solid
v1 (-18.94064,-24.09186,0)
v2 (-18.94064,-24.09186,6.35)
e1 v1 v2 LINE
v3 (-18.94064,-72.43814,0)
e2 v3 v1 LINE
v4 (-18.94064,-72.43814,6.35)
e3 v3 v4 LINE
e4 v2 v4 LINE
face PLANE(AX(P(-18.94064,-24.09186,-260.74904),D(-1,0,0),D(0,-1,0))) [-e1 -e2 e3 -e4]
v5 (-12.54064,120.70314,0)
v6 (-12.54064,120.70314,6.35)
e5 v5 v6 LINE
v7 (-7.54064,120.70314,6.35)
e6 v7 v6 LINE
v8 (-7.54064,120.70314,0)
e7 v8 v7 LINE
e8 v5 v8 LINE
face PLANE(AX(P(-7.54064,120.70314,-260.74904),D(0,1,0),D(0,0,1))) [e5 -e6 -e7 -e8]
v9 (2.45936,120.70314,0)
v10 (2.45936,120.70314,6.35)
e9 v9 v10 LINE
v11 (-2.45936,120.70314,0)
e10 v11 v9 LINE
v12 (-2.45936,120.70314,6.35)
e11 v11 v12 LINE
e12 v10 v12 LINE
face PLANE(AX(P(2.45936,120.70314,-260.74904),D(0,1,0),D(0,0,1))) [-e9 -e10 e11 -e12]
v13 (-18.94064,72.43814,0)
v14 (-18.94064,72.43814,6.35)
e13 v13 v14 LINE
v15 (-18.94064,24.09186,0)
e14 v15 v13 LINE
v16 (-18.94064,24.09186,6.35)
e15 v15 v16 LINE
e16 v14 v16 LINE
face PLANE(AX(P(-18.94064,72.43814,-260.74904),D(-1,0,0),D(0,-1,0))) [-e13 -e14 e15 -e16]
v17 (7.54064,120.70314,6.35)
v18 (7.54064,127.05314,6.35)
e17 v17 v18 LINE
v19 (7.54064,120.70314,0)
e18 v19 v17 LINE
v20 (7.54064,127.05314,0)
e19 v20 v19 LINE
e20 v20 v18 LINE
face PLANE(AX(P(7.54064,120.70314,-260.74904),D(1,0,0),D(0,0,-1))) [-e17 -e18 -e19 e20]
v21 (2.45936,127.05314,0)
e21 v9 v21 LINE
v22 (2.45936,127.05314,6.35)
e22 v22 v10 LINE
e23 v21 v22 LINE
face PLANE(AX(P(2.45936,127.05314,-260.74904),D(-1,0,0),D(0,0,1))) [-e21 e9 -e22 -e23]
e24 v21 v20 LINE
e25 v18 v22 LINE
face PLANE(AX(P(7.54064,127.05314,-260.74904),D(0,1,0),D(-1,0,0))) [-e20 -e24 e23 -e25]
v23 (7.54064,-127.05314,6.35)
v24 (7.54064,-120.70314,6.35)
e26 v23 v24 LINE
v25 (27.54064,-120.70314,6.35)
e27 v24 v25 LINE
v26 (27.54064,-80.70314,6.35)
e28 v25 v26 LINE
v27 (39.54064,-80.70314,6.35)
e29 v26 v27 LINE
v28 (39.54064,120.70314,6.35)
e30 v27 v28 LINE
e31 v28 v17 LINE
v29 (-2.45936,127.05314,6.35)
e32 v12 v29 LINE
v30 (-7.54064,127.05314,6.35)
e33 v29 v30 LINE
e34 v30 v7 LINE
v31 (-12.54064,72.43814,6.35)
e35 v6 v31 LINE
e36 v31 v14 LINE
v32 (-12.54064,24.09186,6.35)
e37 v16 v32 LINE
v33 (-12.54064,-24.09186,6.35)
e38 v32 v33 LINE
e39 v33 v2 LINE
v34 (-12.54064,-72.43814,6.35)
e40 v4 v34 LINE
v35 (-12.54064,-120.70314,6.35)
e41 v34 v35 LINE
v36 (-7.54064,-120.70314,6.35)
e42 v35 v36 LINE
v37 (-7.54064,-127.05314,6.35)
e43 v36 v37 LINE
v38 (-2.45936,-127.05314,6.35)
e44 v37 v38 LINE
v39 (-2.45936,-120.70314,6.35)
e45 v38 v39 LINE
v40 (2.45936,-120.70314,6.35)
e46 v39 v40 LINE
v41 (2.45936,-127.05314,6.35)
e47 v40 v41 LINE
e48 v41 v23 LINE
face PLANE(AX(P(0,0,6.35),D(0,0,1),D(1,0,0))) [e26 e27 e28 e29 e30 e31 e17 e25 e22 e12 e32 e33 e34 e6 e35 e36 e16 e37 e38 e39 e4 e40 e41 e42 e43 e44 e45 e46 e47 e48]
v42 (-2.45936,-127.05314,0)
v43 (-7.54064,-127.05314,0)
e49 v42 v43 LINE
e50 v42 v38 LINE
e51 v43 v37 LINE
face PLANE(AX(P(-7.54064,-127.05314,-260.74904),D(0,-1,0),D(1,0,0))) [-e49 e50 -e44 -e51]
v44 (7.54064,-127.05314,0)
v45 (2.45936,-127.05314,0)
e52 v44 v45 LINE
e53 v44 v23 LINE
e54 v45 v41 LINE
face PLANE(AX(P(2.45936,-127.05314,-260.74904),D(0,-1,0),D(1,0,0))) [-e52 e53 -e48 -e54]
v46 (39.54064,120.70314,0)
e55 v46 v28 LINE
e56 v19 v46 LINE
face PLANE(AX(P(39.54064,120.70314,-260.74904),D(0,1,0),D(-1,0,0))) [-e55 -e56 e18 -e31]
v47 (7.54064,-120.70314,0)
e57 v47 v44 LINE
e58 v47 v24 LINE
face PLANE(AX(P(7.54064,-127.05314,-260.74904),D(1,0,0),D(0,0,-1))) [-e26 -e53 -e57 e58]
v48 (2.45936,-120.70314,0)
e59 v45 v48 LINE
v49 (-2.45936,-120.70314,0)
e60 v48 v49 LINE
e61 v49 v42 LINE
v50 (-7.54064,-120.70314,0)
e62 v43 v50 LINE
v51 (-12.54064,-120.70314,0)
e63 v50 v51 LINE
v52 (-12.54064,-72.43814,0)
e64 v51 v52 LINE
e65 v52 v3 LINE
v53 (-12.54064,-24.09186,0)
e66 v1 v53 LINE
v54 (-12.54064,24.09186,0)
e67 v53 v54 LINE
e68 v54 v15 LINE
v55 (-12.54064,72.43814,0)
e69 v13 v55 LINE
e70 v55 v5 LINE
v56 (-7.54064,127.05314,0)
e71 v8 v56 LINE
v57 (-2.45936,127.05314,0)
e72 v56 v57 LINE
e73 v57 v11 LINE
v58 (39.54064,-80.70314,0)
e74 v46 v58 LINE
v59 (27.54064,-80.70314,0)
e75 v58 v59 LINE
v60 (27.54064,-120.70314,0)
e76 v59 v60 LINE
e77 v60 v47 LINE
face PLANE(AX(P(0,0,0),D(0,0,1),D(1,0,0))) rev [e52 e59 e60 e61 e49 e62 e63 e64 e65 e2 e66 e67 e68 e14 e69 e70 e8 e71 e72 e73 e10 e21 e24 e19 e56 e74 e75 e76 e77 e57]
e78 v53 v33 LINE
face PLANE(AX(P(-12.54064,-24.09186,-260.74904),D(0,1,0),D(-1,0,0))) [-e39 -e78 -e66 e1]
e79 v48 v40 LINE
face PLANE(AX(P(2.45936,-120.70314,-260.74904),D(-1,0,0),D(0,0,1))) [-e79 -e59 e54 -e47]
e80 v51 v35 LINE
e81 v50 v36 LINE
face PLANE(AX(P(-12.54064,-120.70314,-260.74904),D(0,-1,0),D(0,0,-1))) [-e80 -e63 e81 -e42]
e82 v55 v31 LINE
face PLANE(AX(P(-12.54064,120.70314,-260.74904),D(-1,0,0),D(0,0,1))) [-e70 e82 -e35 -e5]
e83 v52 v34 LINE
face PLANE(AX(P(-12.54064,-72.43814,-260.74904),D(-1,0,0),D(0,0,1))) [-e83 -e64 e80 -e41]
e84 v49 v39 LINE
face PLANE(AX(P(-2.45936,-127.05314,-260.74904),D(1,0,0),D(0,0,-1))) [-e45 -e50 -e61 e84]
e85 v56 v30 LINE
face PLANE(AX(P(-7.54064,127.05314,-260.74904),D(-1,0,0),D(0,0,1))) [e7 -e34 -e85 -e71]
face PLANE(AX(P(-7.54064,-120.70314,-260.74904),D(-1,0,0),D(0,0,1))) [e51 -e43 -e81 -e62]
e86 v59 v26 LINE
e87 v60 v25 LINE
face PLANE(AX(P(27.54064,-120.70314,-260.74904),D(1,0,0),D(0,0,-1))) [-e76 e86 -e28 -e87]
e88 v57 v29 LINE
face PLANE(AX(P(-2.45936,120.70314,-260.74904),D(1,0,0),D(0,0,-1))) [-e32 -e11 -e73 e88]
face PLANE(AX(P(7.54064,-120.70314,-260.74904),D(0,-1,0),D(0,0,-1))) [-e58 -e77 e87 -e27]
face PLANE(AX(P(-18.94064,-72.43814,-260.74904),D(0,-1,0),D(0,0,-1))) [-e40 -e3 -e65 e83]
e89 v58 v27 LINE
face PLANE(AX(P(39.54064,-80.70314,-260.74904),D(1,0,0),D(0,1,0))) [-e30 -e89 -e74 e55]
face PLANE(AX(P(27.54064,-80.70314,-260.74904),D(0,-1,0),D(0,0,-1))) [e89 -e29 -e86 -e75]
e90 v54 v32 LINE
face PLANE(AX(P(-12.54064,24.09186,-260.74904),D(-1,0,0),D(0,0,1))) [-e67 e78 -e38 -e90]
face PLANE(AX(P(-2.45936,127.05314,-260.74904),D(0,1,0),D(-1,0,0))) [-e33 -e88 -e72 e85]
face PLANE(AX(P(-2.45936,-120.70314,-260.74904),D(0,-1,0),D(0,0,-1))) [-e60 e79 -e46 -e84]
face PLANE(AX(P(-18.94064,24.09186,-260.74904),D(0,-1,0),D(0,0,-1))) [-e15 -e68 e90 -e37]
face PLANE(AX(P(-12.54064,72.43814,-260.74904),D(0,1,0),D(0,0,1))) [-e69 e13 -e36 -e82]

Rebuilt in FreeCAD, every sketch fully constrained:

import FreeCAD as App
import Part
import Sketcher

V = App.Vector
Q = App.Units.Quantity

doc = App.newDocument("Part")
body = doc.addObject("PartDesign::Body", "Body")

# Sketch on XY plane
sketch1 = doc.addObject("Sketcher::SketchObject", "Sketch")
body.addObject(sketch1)
sketch1.AttachmentSupport = (doc.XY_Plane, [""])
sketch1.MapMode = "FlatFace"
sketch1.addGeometry([
    Part.LineSegment(V(-7.5, 127.0125, 0), V(-7.5, 120.6625, 0)),  # 0
    Part.LineSegment(V(-7.5, 120.6625, 0), V(-12.5, 120.6625, 0)),  # 1
    Part.LineSegment(V(-12.5, 120.6625, 0), V(-12.5, 72.3975, 0)),  # 2
    Part.LineSegment(V(-12.5, 72.3975, 0), V(-18.9, 72.3975, 0)),  # 3
    Part.LineSegment(V(-18.9, 72.3975, 0), V(-18.9, 24.1325, 0)),  # 4
    Part.LineSegment(V(-18.9, 24.1325, 0), V(-12.5, 24.1325, 0)),  # 5
    Part.LineSegment(V(-12.5, 24.1325, 0), V(-12.5, -24.1325, 0)),  # 6
    Part.LineSegment(V(-12.5, -24.1325, 0), V(-18.9, -24.1325, 0)),  # 7
    Part.LineSegment(V(-18.9, -24.1325, 0), V(-18.9, -72.3975, 0)),  # 8
    Part.LineSegment(V(-18.9, -72.3975, 0), V(-12.5, -72.3975, 0)),  # 9
    Part.LineSegment(V(-12.5, -72.3975, 0), V(-12.5, -120.6625, 0)),  # 10
    Part.LineSegment(V(-12.5, -120.6625, 0), V(-7.5, -120.6625, 0)),  # 11
    Part.LineSegment(V(-7.5, -120.6625, 0), V(-7.5, -127.0125, 0)),  # 12
    Part.LineSegment(V(-7.5, -127.0125, 0), V(-2.5, -127.0125, 0)),  # 13
    Part.LineSegment(V(-2.5, -127.0125, 0), V(-2.5, -120.6625, 0)),  # 14
    Part.LineSegment(V(-2.5, -120.6625, 0), V(2.5, -120.6625, 0)),  # 15
    Part.LineSegment(V(2.5, -120.6625, 0), V(2.5, -127.0125, 0)),  # 16
    Part.LineSegment(V(2.5, -127.0125, 0), V(7.5, -127.0125, 0)),  # 17
    Part.LineSegment(V(7.5, -127.0125, 0), V(7.5, -120.6625, 0)),  # 18
    Part.LineSegment(V(7.5, -120.6625, 0), V(27.5, -120.6625, 0)),  # 19
    Part.LineSegment(V(27.5, -120.6625, 0), V(27.5, -80.6625, 0)),  # 20
    Part.LineSegment(V(27.5, -80.6625, 0), V(39.5, -80.6625, 0)),  # 21
    Part.LineSegment(V(39.5, -80.6625, 0), V(39.5, 120.6625, 0)),  # 22
    Part.LineSegment(V(39.5, 120.6625, 0), V(7.5, 120.6625, 0)),  # 23
    Part.LineSegment(V(7.5, 120.6625, 0), V(7.5, 127.0125, 0)),  # 24
    Part.LineSegment(V(7.5, 127.0125, 0), V(2.5, 127.0125, 0)),  # 25
    Part.LineSegment(V(2.5, 127.0125, 0), V(2.5, 120.6625, 0)),  # 26
    Part.LineSegment(V(2.5, 120.6625, 0), V(-2.5, 120.6625, 0)),  # 27
    Part.LineSegment(V(-2.5, 120.6625, 0), V(-2.5, 127.0125, 0)),  # 28
    Part.LineSegment(V(-2.5, 127.0125, 0), V(-7.5, 127.0125, 0)),  # 29
], False)
sketch1.addConstraint([
    Sketcher.Constraint("Coincident", 0, 2, 1, 1),
    Sketcher.Constraint("Coincident", 1, 2, 2, 1),
    Sketcher.Constraint("Coincident", 2, 2, 3, 1),
    Sketcher.Constraint("Coincident", 3, 2, 4, 1),
    Sketcher.Constraint("Coincident", 4, 2, 5, 1),
    Sketcher.Constraint("Coincident", 5, 2, 6, 1),
    Sketcher.Constraint("Coincident", 6, 2, 7, 1),
    Sketcher.Constraint("Coincident", 7, 2, 8, 1),
    Sketcher.Constraint("Coincident", 8, 2, 9, 1),
    Sketcher.Constraint("Coincident", 9, 2, 10, 1),
    Sketcher.Constraint("Coincident", 10, 2, 11, 1),
    Sketcher.Constraint("Coincident", 11, 2, 12, 1),
    Sketcher.Constraint("Coincident", 12, 2, 13, 1),
    Sketcher.Constraint("Coincident", 13, 2, 14, 1),
    Sketcher.Constraint("Coincident", 14, 2, 15, 1),
    Sketcher.Constraint("Coincident", 15, 2, 16, 1),
    Sketcher.Constraint("Coincident", 16, 2, 17, 1),
    Sketcher.Constraint("Coincident", 17, 2, 18, 1),
    Sketcher.Constraint("Coincident", 18, 2, 19, 1),
    Sketcher.Constraint("Coincident", 19, 2, 20, 1),
    Sketcher.Constraint("Coincident", 20, 2, 21, 1),
    Sketcher.Constraint("Coincident", 21, 2, 22, 1),
    Sketcher.Constraint("Coincident", 22, 2, 23, 1),
    Sketcher.Constraint("Coincident", 23, 2, 24, 1),
    Sketcher.Constraint("Coincident", 24, 2, 25, 1),
    Sketcher.Constraint("Coincident", 25, 2, 26, 1),
    Sketcher.Constraint("Coincident", 26, 2, 27, 1),
    Sketcher.Constraint("Coincident", 27, 2, 28, 1),
    Sketcher.Constraint("Coincident", 28, 2, 29, 1),
    Sketcher.Constraint("Coincident", 29, 2, 0, 1),
    Sketcher.Constraint("Vertical", 0),
    Sketcher.Constraint("Horizontal", 1),
    Sketcher.Constraint("Vertical", 2),
    Sketcher.Constraint("Horizontal", 3),
    Sketcher.Constraint("Vertical", 4),
    Sketcher.Constraint("Horizontal", 5),
    Sketcher.Constraint("Vertical", 6),
    Sketcher.Constraint("Horizontal", 7),
    Sketcher.Constraint("Vertical", 8),
    Sketcher.Constraint("Horizontal", 9),
    Sketcher.Constraint("Vertical", 10),
    Sketcher.Constraint("Horizontal", 11),
    Sketcher.Constraint("Vertical", 12),
    Sketcher.Constraint("Horizontal", 13),
    Sketcher.Constraint("Vertical", 14),
    Sketcher.Constraint("Horizontal", 15),
    Sketcher.Constraint("Vertical", 16),
    Sketcher.Constraint("Horizontal", 17),
    Sketcher.Constraint("Vertical", 18),
    Sketcher.Constraint("Horizontal", 19),
    Sketcher.Constraint("Vertical", 20),
    Sketcher.Constraint("Horizontal", 21),
    Sketcher.Constraint("Vertical", 22),
    Sketcher.Constraint("Horizontal", 23),
    Sketcher.Constraint("Vertical", 24),
    Sketcher.Constraint("Horizontal", 25),
    Sketcher.Constraint("Vertical", 26),
    Sketcher.Constraint("Horizontal", 27),
    Sketcher.Constraint("Vertical", 28),
    Sketcher.Constraint("Horizontal", 29),
    Sketcher.Constraint("Symmetric", 0, 2, 18, 2, -1, 1),
    Sketcher.Constraint("Symmetric", 11, 2, 23, 2, -1, 1),
    Sketcher.Constraint("Symmetric", 13, 2, 25, 2, -1, 1),
    Sketcher.Constraint("Symmetric", 15, 2, 27, 2, -1, 1),
    Sketcher.Constraint("Symmetric", 13, 2, 16, 2, -2),
    Sketcher.Constraint("Symmetric", 11, 2, 18, 2, -2),
    Sketcher.Constraint("Symmetric", 4, 2, 7, 2, -1),
    Sketcher.Constraint("Symmetric", 2, 2, 9, 2, -1),
    Sketcher.Constraint("Horizontal", 11, 2, 14, 2),
    Sketcher.Constraint("Horizontal", 25, 2, 28, 2),
    Sketcher.Constraint("Vertical", 2, 2, 5, 2),
    Sketcher.Constraint("Equal", 11, 13),
    Sketcher.Constraint("Equal", 13, 15),
    Sketcher.Constraint("Equal", 2, 4),
    Sketcher.Constraint("Equal", 4, 6),
    Sketcher.Constraint("DistanceX", 1, 2, 1, 1, Q("5 mm")),
    Sketcher.Constraint("DistanceX", 19, 1, 19, 2, Q("20 mm")),
    Sketcher.Constraint("DistanceX", 21, 1, 21, 2, Q("12 mm")),
    Sketcher.Constraint("DistanceY", 20, 1, 20, 2, Q("40 mm")),
    Sketcher.Constraint("DistanceX", 3, 2, 3, 1, Q("6.4 mm")),
    Sketcher.Constraint("DistanceY", 0, 2, 0, 1, Q("6.35 mm")),
    Sketcher.Constraint("DistanceY", 2, 2, 2, 1, Q("48.265 mm")),
])
pad1 = doc.addObject("PartDesign::Pad", "Pad")
body.addObject(pad1)
pad1.Profile = sketch1
pad1.Length = 6.35

# Sketch on XY plane
sketch2 = doc.addObject("Sketcher::SketchObject", "Sketch001")
body.addObject(sketch2)
sketch2.AttachmentSupport = (doc.XY_Plane, [""])
sketch2.MapMode = "FlatFace"
sketch2.AttachmentOffset = App.Placement(V(0, 0, 6.35), App.Rotation())
sketch2.addGeometry([
    Part.LineSegment(V(27.54064, -120.70314, 0), V(27.54064, -80.70314, 0)),  # 0
    Part.LineSegment(V(27.54064, -80.70314, 0), V(39.54064, -80.70314, 0)),  # 1
    Part.LineSegment(V(39.54064, -80.70314, 0), V(39.54064, 120.70314, 0)),  # 2
    Part.LineSegment(V(39.54064, 120.70314, 0), V(7.54064, 120.70314, 0)),  # 3
    Part.LineSegment(V(7.54064, 120.70314, 0), V(7.54064, 127.05314, 0)),  # 4
    Part.LineSegment(V(7.54064, 127.05314, 0), V(2.45936, 127.05314, 0)),  # 5
    Part.LineSegment(V(2.45936, 127.05314, 0), V(2.45936, 120.70314, 0)),  # 6
    Part.LineSegment(V(2.45936, 120.70314, 0), V(-2.45936, 120.70314, 0)),  # 7
    Part.LineSegment(V(-2.45936, 120.70314, 0), V(-2.45936, 127.05314, 0)),  # 8
    Part.LineSegment(V(-2.45936, 127.05314, 0), V(-7.54064, 127.05314, 0)),  # 9
    Part.LineSegment(V(-7.54064, 127.05314, 0), V(-7.54064, 120.70314, 0)),  # 10
    Part.LineSegment(V(-7.54064, 120.70314, 0), V(-12.54064, 120.70314, 0)),  # 11
    Part.LineSegment(V(-12.54064, 120.70314, 0), V(-12.54064, 72.43814, 0)),  # 12
    Part.LineSegment(V(-12.54064, 72.43814, 0), V(-18.94064, 72.43814, 0)),  # 13
    Part.LineSegment(V(-18.94064, 72.43814, 0), V(-18.94064, 24.09186, 0)),  # 14
    Part.LineSegment(V(-18.94064, 24.09186, 0), V(-12.54064, 24.09186, 0)),  # 15
    Part.LineSegment(V(-12.54064, 24.09186, 0), V(-12.54064, -24.09186, 0)),  # 16
    Part.LineSegment(V(-12.54064, -24.09186, 0), V(-18.94064, -24.09186, 0)),  # 17
    Part.LineSegment(V(-18.94064, -24.09186, 0), V(-18.94064, -72.43814, 0)),  # 18
    Part.LineSegment(V(-18.94064, -72.43814, 0), V(-12.54064, -72.43814, 0)),  # 19
    Part.LineSegment(V(-12.54064, -72.43814, 0), V(-12.54064, -120.70314, 0)),  # 20
    Part.LineSegment(V(-12.54064, -120.70314, 0), V(-7.54064, -120.70314, 0)),  # 21
    Part.LineSegment(V(-7.54064, -120.70314, 0), V(-7.54064, -127.05314, 0)),  # 22
    Part.LineSegment(V(-7.54064, -127.05314, 0), V(-2.45936, -127.05314, 0)),  # 23
    Part.LineSegment(V(-2.45936, -127.05314, 0), V(-2.45936, -120.70314, 0)),  # 24
    Part.LineSegment(V(-2.45936, -120.70314, 0), V(2.45936, -120.70314, 0)),  # 25
    Part.LineSegment(V(2.45936, -120.70314, 0), V(2.45936, -127.05314, 0)),  # 26
    Part.LineSegment(V(2.45936, -127.05314, 0), V(7.54064, -127.05314, 0)),  # 27
    Part.LineSegment(V(7.54064, -127.05314, 0), V(7.54064, -120.70314, 0)),  # 28
    Part.LineSegment(V(7.54064, -120.70314, 0), V(27.54064, -120.70314, 0)),  # 29
], False)
sketch2.addConstraint([
    Sketcher.Constraint("Coincident", 0, 2, 1, 1),
    Sketcher.Constraint("Coincident", 1, 2, 2, 1),
    Sketcher.Constraint("Coincident", 2, 2, 3, 1),
    Sketcher.Constraint("Coincident", 3, 2, 4, 1),
    Sketcher.Constraint("Coincident", 4, 2, 5, 1),
    Sketcher.Constraint("Coincident", 5, 2, 6, 1),
    Sketcher.Constraint("Coincident", 6, 2, 7, 1),
    Sketcher.Constraint("Coincident", 7, 2, 8, 1),
    Sketcher.Constraint("Coincident", 8, 2, 9, 1),
    Sketcher.Constraint("Coincident", 9, 2, 10, 1),
    Sketcher.Constraint("Coincident", 10, 2, 11, 1),
    Sketcher.Constraint("Coincident", 11, 2, 12, 1),
    Sketcher.Constraint("Coincident", 12, 2, 13, 1),
    Sketcher.Constraint("Coincident", 13, 2, 14, 1),
    Sketcher.Constraint("Coincident", 14, 2, 15, 1),
    Sketcher.Constraint("Coincident", 15, 2, 16, 1),
    Sketcher.Constraint("Coincident", 16, 2, 17, 1),
    Sketcher.Constraint("Coincident", 17, 2, 18, 1),
    Sketcher.Constraint("Coincident", 18, 2, 19, 1),
    Sketcher.Constraint("Coincident", 19, 2, 20, 1),
    Sketcher.Constraint("Coincident", 20, 2, 21, 1),
    Sketcher.Constraint("Coincident", 21, 2, 22, 1),
    Sketcher.Constraint("Coincident", 22, 2, 23, 1),
    Sketcher.Constraint("Coincident", 23, 2, 24, 1),
    Sketcher.Constraint("Coincident", 24, 2, 25, 1),
    Sketcher.Constraint("Coincident", 25, 2, 26, 1),
    Sketcher.Constraint("Coincident", 26, 2, 27, 1),
    Sketcher.Constraint("Coincident", 27, 2, 28, 1),
    Sketcher.Constraint("Coincident", 28, 2, 29, 1),
    Sketcher.Constraint("Coincident", 29, 2, 0, 1),
    Sketcher.Constraint("Vertical", 0),
    Sketcher.Constraint("Horizontal", 1),
    Sketcher.Constraint("Vertical", 2),
    Sketcher.Constraint("Horizontal", 3),
    Sketcher.Constraint("Vertical", 4),
    Sketcher.Constraint("Horizontal", 5),
    Sketcher.Constraint("Vertical", 6),
    Sketcher.Constraint("Horizontal", 7),
    Sketcher.Constraint("Vertical", 8),
    Sketcher.Constraint("Horizontal", 9),
    Sketcher.Constraint("Vertical", 10),
    Sketcher.Constraint("Horizontal", 11),
    Sketcher.Constraint("Vertical", 12),
    Sketcher.Constraint("Horizontal", 13),
    Sketcher.Constraint("Vertical", 14),
    Sketcher.Constraint("Horizontal", 15),
    Sketcher.Constraint("Vertical", 16),
    Sketcher.Constraint("Horizontal", 17),
    Sketcher.Constraint("Vertical", 18),
    Sketcher.Constraint("Horizontal", 19),
    Sketcher.Constraint("Vertical", 20),
    Sketcher.Constraint("Horizontal", 21),
    Sketcher.Constraint("Vertical", 22),
    Sketcher.Constraint("Horizontal", 23),
    Sketcher.Constraint("Vertical", 24),
    Sketcher.Constraint("Horizontal", 25),
    Sketcher.Constraint("Vertical", 26),
    Sketcher.Constraint("Horizontal", 27),
    Sketcher.Constraint("Vertical", 28),
    Sketcher.Constraint("Horizontal", 29),
    Sketcher.Constraint("Symmetric", 3, 2, 21, 2, -1, 1),
    Sketcher.Constraint("Symmetric", 5, 2, 23, 2, -1, 1),
    Sketcher.Constraint("Symmetric", 7, 2, 25, 2, -1, 1),
    Sketcher.Constraint("Symmetric", 9, 2, 27, 2, -1, 1),
    Sketcher.Constraint("Symmetric", 5, 2, 8, 2, -2),
    Sketcher.Constraint("Symmetric", 3, 2, 10, 2, -2),
    Sketcher.Constraint("Symmetric", 14, 2, 17, 2, -1),
    Sketcher.Constraint("Symmetric", 12, 2, 19, 2, -1),
    Sketcher.Constraint("Horizontal", 3, 2, 6, 2),
    Sketcher.Constraint("Horizontal", 25, 2, 28, 2),
    Sketcher.Constraint("Vertical", 12, 2, 15, 2),
    Sketcher.Constraint("DistanceX", 1, 1, 1, 2, Q("12 mm")),
    Sketcher.Constraint("DistanceX", 3, 2, 3, 1, Q("32 mm")),
    Sketcher.Constraint("DistanceX", 11, 2, 11, 1, Q("5 mm")),
    Sketcher.Constraint("DistanceY", 0, 1, 0, 2, Q("40 mm")),
    Sketcher.Constraint("DistanceX", 13, 2, 13, 1, Q("6.4 mm")),
    Sketcher.Constraint("DistanceX", 7, 2, 3, 2, Q("10 mm")),
    Sketcher.Constraint("DistanceY", 4, 1, 4, 2, Q("6.35 mm")),
    Sketcher.Constraint("DistanceY", 12, 2, 12, 1, Q("48.265 mm")),
    Sketcher.Constraint("DistanceY", 16, 2, 12, 2, Q("96.53 mm")),
    Sketcher.Constraint("DistanceX", 5, 2, 5, 1, Q("5.08128 mm")),
    Sketcher.Constraint("DistanceY", 2, 1, 2, 2, Q("201.40628 mm")),
])
pad2 = doc.addObject("PartDesign::Pad", "Pad001")
body.addObject(pad2)
pad2.Profile = sketch2
pad2.Length = 6.35
pad2.Reversed = True

doc.recompute()
